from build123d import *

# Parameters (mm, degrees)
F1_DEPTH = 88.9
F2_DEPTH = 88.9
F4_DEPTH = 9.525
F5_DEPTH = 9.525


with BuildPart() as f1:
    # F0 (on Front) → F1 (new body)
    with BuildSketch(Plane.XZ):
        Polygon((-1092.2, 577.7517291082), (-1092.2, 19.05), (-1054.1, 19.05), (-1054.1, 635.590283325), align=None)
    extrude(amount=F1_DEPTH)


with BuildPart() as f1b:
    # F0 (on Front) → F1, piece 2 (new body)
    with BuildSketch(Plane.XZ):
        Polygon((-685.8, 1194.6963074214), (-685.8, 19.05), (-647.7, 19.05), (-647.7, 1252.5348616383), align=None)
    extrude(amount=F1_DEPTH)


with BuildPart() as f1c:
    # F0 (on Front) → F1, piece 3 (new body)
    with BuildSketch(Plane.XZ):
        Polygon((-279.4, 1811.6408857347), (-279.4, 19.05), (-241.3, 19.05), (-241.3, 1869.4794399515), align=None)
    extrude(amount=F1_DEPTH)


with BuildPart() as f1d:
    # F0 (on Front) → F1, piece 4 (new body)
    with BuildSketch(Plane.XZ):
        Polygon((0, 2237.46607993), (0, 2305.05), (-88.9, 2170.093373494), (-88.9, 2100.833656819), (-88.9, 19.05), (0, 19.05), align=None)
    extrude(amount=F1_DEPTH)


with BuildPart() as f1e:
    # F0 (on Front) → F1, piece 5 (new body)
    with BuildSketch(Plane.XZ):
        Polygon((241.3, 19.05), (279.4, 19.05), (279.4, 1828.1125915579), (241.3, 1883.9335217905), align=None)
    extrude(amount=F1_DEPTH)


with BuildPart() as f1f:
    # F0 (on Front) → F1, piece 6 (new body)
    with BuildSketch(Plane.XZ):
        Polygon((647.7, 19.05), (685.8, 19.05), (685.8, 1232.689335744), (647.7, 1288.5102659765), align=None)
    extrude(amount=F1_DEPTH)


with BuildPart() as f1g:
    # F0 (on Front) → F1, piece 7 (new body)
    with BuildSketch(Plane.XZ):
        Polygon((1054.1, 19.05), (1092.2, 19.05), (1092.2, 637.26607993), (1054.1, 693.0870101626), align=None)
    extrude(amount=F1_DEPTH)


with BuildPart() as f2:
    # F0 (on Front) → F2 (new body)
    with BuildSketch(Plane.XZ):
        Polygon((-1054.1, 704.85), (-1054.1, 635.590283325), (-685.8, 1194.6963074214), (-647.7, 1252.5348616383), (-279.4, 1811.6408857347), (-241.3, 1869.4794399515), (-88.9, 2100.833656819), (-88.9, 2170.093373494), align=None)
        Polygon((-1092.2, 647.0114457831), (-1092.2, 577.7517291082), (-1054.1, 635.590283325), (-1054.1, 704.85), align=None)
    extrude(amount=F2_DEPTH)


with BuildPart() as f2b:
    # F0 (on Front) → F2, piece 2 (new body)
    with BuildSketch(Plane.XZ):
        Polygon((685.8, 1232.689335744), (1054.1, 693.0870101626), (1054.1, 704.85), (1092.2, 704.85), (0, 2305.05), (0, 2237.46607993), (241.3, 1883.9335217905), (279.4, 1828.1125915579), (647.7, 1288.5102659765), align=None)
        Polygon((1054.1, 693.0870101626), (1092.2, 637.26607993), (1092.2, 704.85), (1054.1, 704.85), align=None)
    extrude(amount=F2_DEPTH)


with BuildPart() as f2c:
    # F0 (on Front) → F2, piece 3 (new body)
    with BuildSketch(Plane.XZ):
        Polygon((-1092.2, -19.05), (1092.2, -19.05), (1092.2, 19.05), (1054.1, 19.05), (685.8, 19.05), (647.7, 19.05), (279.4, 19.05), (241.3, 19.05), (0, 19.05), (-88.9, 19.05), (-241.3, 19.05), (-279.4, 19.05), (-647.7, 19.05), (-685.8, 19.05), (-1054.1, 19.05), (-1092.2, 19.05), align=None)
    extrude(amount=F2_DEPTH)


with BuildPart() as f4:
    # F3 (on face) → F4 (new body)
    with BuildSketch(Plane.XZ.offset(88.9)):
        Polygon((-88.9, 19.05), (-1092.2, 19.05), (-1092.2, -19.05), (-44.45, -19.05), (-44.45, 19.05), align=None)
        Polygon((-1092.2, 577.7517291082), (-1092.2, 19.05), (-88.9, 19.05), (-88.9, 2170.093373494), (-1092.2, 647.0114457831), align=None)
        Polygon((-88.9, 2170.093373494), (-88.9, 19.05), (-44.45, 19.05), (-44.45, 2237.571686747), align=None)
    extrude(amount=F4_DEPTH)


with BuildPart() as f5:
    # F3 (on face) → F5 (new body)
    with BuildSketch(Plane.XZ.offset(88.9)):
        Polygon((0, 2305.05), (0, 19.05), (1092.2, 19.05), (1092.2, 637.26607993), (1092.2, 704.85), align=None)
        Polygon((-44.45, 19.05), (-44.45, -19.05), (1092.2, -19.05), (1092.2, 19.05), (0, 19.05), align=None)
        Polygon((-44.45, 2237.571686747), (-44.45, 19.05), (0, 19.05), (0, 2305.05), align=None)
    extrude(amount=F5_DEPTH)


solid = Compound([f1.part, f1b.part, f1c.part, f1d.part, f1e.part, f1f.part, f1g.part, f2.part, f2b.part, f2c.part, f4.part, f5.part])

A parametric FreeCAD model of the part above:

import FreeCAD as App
import Part
import Sketcher
from FreeCAD import Vector
Q = App.Units.Quantity


def add_polygon(sketch, points):
    """Adds a closed chain of lines whose ends are joined by coincident constraints."""
    first, n = sketch.GeometryCount, len(points)
    for a, b in zip(points, points[1:] + points[:1]):
        sketch.addGeometry(Part.LineSegment(App.Vector(*a, 0), App.Vector(*b, 0)), False)
    for i in range(n):
        sketch.addConstraint(Sketcher.Constraint("Coincident", first + i, 2, first + (i + 1) % n, 1))

doc = App.newDocument("Part")
params = doc.addObject("Spreadsheet::Sheet", "Params")
for row, (alias, value) in enumerate([
    ("sketch1_width", "1.5 in"),
    ("pad1_length", "3.5 in"),
    ("sketch2_width", "1.5 in"),
    ("pad2_length", "3.5 in"),
    ("sketch3_width", "1.5 in"),
    ("pad3_length", "3.5 in"),
    ("sketch4_height", "90 in"),
    ("sketch4_width", "3.5 in"),
    ("pad4_length", "3.5 in"),
    ("sketch5_width", "1.5 in"),
    ("pad5_length", "3.5 in"),
    ("sketch6_width", "1.5 in"),
    ("pad6_length", "3.5 in"),
    ("sketch7_width", "1.5 in"),
    ("pad7_length", "3.5 in"),
    ("pad8_length", "3.5 in"),
    ("pad9_length", "3.5 in"),
    ("sketch10_width", "86 in"),
    ("sketch10_height", "1.5 in"),
    ("pad10_length", "3.5 in"),
    ("sketch11_width", "41.25 in"),
    ("pad11_length", "0.375 in"),
    ("sketch12_height", "28.5 in"),
    ("sketch12_width", "44.75 in"),
    ("pad12_length", "0.375 in"),
], start=1):
    params.set(f"A{row}", alias)
    params.set(f"B{row}", "=" + value)
    params.setAlias(f"B{row}", alias)

body = doc.addObject("PartDesign::Body", "Body")

# Sketch on XZ plane
sketch1 = body.newObject("Sketcher::SketchObject", "Sketch")
sketch1.AttachmentSupport = (doc.getObject("XZ_Plane"), [""])
sketch1.MapMode = "FlatFace"
add_polygon(sketch1, [(-1092, 578), (-1092, 19), (-1054, 19), (-1054, 636)])  # lines 0-3
sketch1.addConstraint([
    Sketcher.Constraint("Vertical", 0),
    Sketcher.Constraint("Horizontal", 1),
    Sketcher.Constraint("Vertical", 2),
    Sketcher.Constraint("DistanceX", 1, 1, 1, 2, Q("1.5 in")),
    Sketcher.Constraint("DistanceX", 0, 2, -1, 1, Q("43 in")),
    Sketcher.Constraint("DistanceY", -1, 1, 0, 2, Q("0.75 in")),
    Sketcher.Constraint("DistanceY", 0, 2, 0, 1, Q("558.701729 mm")),
    Sketcher.Constraint("DistanceY", 2, 1, 2, 2, Q("616.540283 mm")),
])
sketch1.setExpression("Constraints[7]", "Params.sketch1_width")
pad1 = body.newObject("PartDesign::Pad", "Pad")
pad1.Profile = sketch1
pad1.setExpression("Length", "Params.pad1_length")
body2 = doc.addObject("PartDesign::Body", "Body001")

# Sketch on XZ plane
sketch2 = body2.newObject("Sketcher::SketchObject", "Sketch001")
sketch2.AttachmentSupport = (doc.getObject("XZ_Plane001"), [""])
sketch2.MapMode = "FlatFace"
add_polygon(sketch2, [(-686, 1195), (-686, 19), (-648, 19), (-648, 1253)])  # lines 0-3
sketch2.addConstraint([
    Sketcher.Constraint("Vertical", 0),
    Sketcher.Constraint("Horizontal", 1),
    Sketcher.Constraint("Vertical", 2),
    Sketcher.Constraint("DistanceX", 1, 1, 1, 2, Q("1.5 in")),
    Sketcher.Constraint("DistanceX", 0, 2, -1, 1, Q("27 in")),
    Sketcher.Constraint("DistanceY", -1, 1, 0, 2, Q("0.75 in")),
    Sketcher.Constraint("DistanceY", 2, 1, 2, 2, Q("1233.484862 mm")),
    Sketcher.Constraint("DistanceY", 0, 2, 0, 1, Q("1175.646307 mm")),
])
sketch2.setExpression("Constraints[7]", "Params.sketch2_width")
pad2 = body2.newObject("PartDesign::Pad", "Pad001")
pad2.Profile = sketch2
pad2.setExpression("Length", "Params.pad2_length")
body3 = doc.addObject("PartDesign::Body", "Body002")

# Sketch on XZ plane
sketch3 = body3.newObject("Sketcher::SketchObject", "Sketch002")
sketch3.AttachmentSupport = (doc.getObject("XZ_Plane002"), [""])
sketch3.MapMode = "FlatFace"
add_polygon(sketch3, [(-279, 1812), (-279, 19), (-241, 19), (-241, 1869)])  # lines 0-3
sketch3.addConstraint([
    Sketcher.Constraint("Vertical", 0),
    Sketcher.Constraint("Horizontal", 1),
    Sketcher.Constraint("Vertical", 2),
    Sketcher.Constraint("DistanceX", 1, 1, 1, 2, Q("1.5 in")),
    Sketcher.Constraint("DistanceX", 0, 2, -1, 1, Q("11 in")),
    Sketcher.Constraint("DistanceY", -1, 1, 0, 2, Q("0.75 in")),
    Sketcher.Constraint("DistanceY", 2, 1, 2, 2, Q("1850.42944 mm")),
    Sketcher.Constraint("DistanceY", 0, 2, 0, 1, Q("1792.590886 mm")),
])
sketch3.setExpression("Constraints[7]", "Params.sketch3_width")
pad3 = body3.newObject("PartDesign::Pad", "Pad002")
pad3.Profile = sketch3
pad3.setExpression("Length", "Params.pad3_length")
body4 = doc.addObject("PartDesign::Body", "Body003")

# Sketch on XZ plane
sketch4 = body4.newObject("Sketcher::SketchObject", "Sketch003")
sketch4.AttachmentSupport = (doc.getObject("XZ_Plane003"), [""])
sketch4.MapMode = "FlatFace"
add_polygon(sketch4, [(0, 2305), (-89, 2170), (-89, 19), (0, 19)])  # lines 0-3
sketch4.addConstraint([
    Sketcher.Constraint("Vertical", 1),
    Sketcher.Constraint("Horizontal", 2),
    Sketcher.Constraint("Vertical", 3),
    Sketcher.Constraint("PointOnObject", 2, 2, -2),
    Sketcher.Constraint("DistanceY", 3, 1, 3, 2, Q("90 in")),
    Sketcher.Constraint("DistanceX", 2, 1, 2, 2, Q("3.5 in")),
    Sketcher.Constraint("DistanceY", -1, 1, 1, 2, Q("0.75 in")),
    Sketcher.Constraint("DistanceY", 1, 2, 1, 1, Q("2151.043373 mm")),
])
sketch4.setExpression("Constraints[8]", "Params.sketch4_height")
sketch4.setExpression("Constraints[9]", "Params.sketch4_width")
pad4 = body4.newObject("PartDesign::Pad", "Pad003")
pad4.Profile = sketch4
pad4.setExpression("Length", "Params.pad4_length")
body5 = doc.addObject("PartDesign::Body", "Body004")

# Sketch on XZ plane
sketch5 = body5.newObject("Sketcher::SketchObject", "Sketch004")
sketch5.AttachmentSupport = (doc.getObject("XZ_Plane004"), [""])
sketch5.MapMode = "FlatFace"
add_polygon(sketch5, [(241, 19), (279, 19), (279, 1828), (241, 1884)])  # lines 0-3
sketch5.addConstraint([
    Sketcher.Constraint("Horizontal", 0),
    Sketcher.Constraint("Vertical", 1),
    Sketcher.Constraint("Vertical", 3),
    Sketcher.Constraint("DistanceX", 0, 1, 0, 2, Q("1.5 in")),
    Sketcher.Constraint("DistanceX", -1, 1, 0, 2, Q("11 in")),
    Sketcher.Constraint("DistanceY", -1, 1, 0, 2, Q("0.75 in")),
    Sketcher.Constraint("DistanceY", 1, 1, 1, 2, Q("1809.062592 mm")),
    Sketcher.Constraint("DistanceY", 3, 2, 3, 1, Q("1864.883522 mm")),
])
sketch5.setExpression("Constraints[7]", "Params.sketch5_width")
pad5 = body5.newObject("PartDesign::Pad", "Pad004")
pad5.Profile = sketch5
pad5.setExpression("Length", "Params.pad5_length")
body6 = doc.addObject("PartDesign::Body", "Body005")

# Sketch on XZ plane
sketch6 = body6.newObject("Sketcher::SketchObject", "Sketch005")
sketch6.AttachmentSupport = (doc.getObject("XZ_Plane005"), [""])
sketch6.MapMode = "FlatFace"
add_polygon(sketch6, [(648, 19), (686, 19), (686, 1233), (648, 1289)])  # lines 0-3
sketch6.addConstraint([
    Sketcher.Constraint("Horizontal", 0),
    Sketcher.Constraint("Vertical", 1),
    Sketcher.Constraint("Vertical", 3),
    Sketcher.Constraint("DistanceX", 0, 1, 0, 2, Q("1.5 in")),
    Sketcher.Constraint("DistanceX", -1, 1, 0, 2, Q("27 in")),
    Sketcher.Constraint("DistanceY", -1, 1, 0, 2, Q("0.75 in")),
    Sketcher.Constraint("Distance", 2, Q("67.58392 mm")),
    Sketcher.Constraint("DistanceY", 1, 1, 1, 2, Q("1213.639336 mm")),
])
sketch6.setExpression("Constraints[7]", "Params.sketch6_width")
pad6 = body6.newObject("PartDesign::Pad", "Pad005")
pad6.Profile = sketch6
pad6.setExpression("Length", "Params.pad6_length")
body7 = doc.addObject("PartDesign::Body", "Body006")

# Sketch on XZ plane
sketch7 = body7.newObject("Sketcher::SketchObject", "Sketch006")
sketch7.AttachmentSupport = (doc.getObject("XZ_Plane006"), [""])
sketch7.MapMode = "FlatFace"
add_polygon(sketch7, [(1054, 19), (1092, 19), (1092, 637), (1054, 693)])  # lines 0-3
sketch7.addConstraint([
    Sketcher.Constraint("Horizontal", 0),
    Sketcher.Constraint("Vertical", 1),
    Sketcher.Constraint("Vertical", 3),
    Sketcher.Constraint("DistanceX", 0, 1, 0, 2, Q("1.5 in")),
    Sketcher.Constraint("DistanceX", -1, 1, 0, 2, Q("43 in")),
    Sketcher.Constraint("DistanceY", -1, 1, 0, 2, Q("0.75 in")),
    Sketcher.Constraint("DistanceY", 1, 1, 1, 2, Q("618.21608 mm")),
    Sketcher.Constraint("DistanceY", 3, 2, 3, 1, Q("674.03701 mm")),
])
sketch7.setExpression("Constraints[7]", "Params.sketch7_width")
pad7 = body7.newObject("PartDesign::Pad", "Pad006")
pad7.Profile = sketch7
pad7.setExpression("Length", "Params.pad7_length")
body8 = doc.addObject("PartDesign::Body", "Body007")

# Sketch on XZ plane
sketch8 = body8.newObject("Sketcher::SketchObject", "Sketch007")
sketch8.AttachmentSupport = (doc.getObject("XZ_Plane007"), [""])
sketch8.MapMode = "FlatFace"
add_polygon(sketch8, [(-89, 2101), (-89, 2170), (-1092, 647), (-1092, 578)])  # lines 0-3
sketch8.addConstraint([
    Sketcher.Constraint("Vertical", 0),
    Sketcher.Constraint("Vertical", 2),
    Sketcher.Constraint("Parallel", 1, 3),
    Sketcher.Constraint("DistanceX", 1, 2, -1, 1, Q("43 in")),
    Sketcher.Constraint("DistanceX", 0, 2, -1, 1, Q("3.5 in")),
    Sketcher.Constraint("DistanceY", 0, 1, 0, 2, Q("69.259717 mm")),
    Sketcher.Constraint("DistanceY", -1, 1, 2, 2, Q("577.751729 mm")),
    Sketcher.Constraint("DistanceY", 1, 2, 3, 2, Q("1453.822211 mm")),
])
pad8 = body8.newObject("PartDesign::Pad", "Pad007")
pad8.Profile = sketch8
pad8.setExpression("Length", "Params.pad8_length")
body9 = doc.addObject("PartDesign::Body", "Body008")

# Sketch on XZ plane
sketch9 = body9.newObject("Sketcher::SketchObject", "Sketch008")
sketch9.AttachmentSupport = (doc.getObject("XZ_Plane008"), [""])
sketch9.MapMode = "FlatFace"
add_polygon(sketch9, [(1092, 705), (0, 2305), (0, 2237), (1092, 637)])  # lines 0-3
sketch9.addConstraint([
    Sketcher.Constraint("Vertical", 1),
    Sketcher.Constraint("Vertical", 3),
    Sketcher.Constraint("PointOnObject", 0, 2, -2),
    Sketcher.Constraint("Parallel", 0, 2),
    Sketcher.Constraint("DistanceX", -1, 1, 2, 2, Q("43 in")),
    Sketcher.Constraint("DistanceY", 2, 2, 1, 2, Q("63 in")),
    Sketcher.Constraint("DistanceY", -1, 1, 0, 2, Q("90.75 in")),
    Sketcher.Constraint("DistanceY", 1, 2, 1, 1, Q("67.58392 mm")),
])
pad9 = body9.newObject("PartDesign::Pad", "Pad008")
pad9.Profile = sketch9
pad9.setExpression("Length", "Params.pad9_length")
body10 = doc.addObject("PartDesign::Body", "Body009")

# Sketch on XZ plane
sketch10 = body10.newObject("Sketcher::SketchObject", "Sketch009")
sketch10.AttachmentSupport = (doc.getObject("XZ_Plane009"), [""])
sketch10.MapMode = "FlatFace"
add_polygon(sketch10, [(-1092, -19), (1092, -19), (1092, 19), (-1092, 19)])  # lines 0-3
sketch10.addConstraint([
    Sketcher.Constraint("Horizontal", 0),
    Sketcher.Constraint("Vertical", 1),
    Sketcher.Constraint("Horizontal", 2),
    Sketcher.Constraint("Vertical", 3),
    Sketcher.Constraint("Symmetric", 0, 2, 2, 2, -1, 1),
    Sketcher.Constraint("DistanceX", 0, 1, 0, 2, Q("86 in")),
    Sketcher.Constraint("DistanceY", 1, 1, 1, 2, Q("1.5 in")),
])
sketch10.setExpression("Constraints[9]", "Params.sketch10_width")
sketch10.setExpression("Constraints[10]", "Params.sketch10_height")
pad10 = body10.newObject("PartDesign::Pad", "Pad009")
pad10.Profile = sketch10
pad10.setExpression("Length", "Params.pad10_length")
body11 = doc.addObject("PartDesign::Body", "Body010")

# Sketch on XZ plane
sketch11 = body11.newObject("Sketcher::SketchObject", "Sketch010")
sketch11.AttachmentSupport = (doc.getObject("XZ_Plane010"), [""])
sketch11.MapMode = "FlatFace"
sketch11.AttachmentOffset = App.Placement(Vector(0, 0, 3.5 * 25.4), App.Rotation())
add_polygon(sketch11, [(-1092, -19), (-44, -19), (-44, 2238), (-1092, 647)])  # lines 0-3
sketch11.addConstraint([
    Sketcher.Constraint("Horizontal", 0),
    Sketcher.Constraint("Vertical", 1),
    Sketcher.Constraint("Vertical", 3),
    Sketcher.Constraint("DistanceX", 2, 2, -1, 1, Q("43 in")),
    Sketcher.Constraint("DistanceX", 0, 1, 0, 2, Q("41.25 in")),
    Sketcher.Constraint("DistanceY", 0, 2, -1, 1, Q("0.75 in")),
    Sketcher.Constraint("Distance", 2, Q("1904.642209 mm")),
    Sketcher.Constraint("DistanceY", 1, 1, 1, 2, Q("2256.621687 mm")),
])
sketch11.setExpression("Constraints[8]", "Params.sketch11_width")
pad11 = body11.newObject("PartDesign::Pad", "Pad010")
pad11.Profile = sketch11
pad11.setExpression("Length", "Params.pad11_length")
body12 = doc.addObject("PartDesign::Body", "Body011")

# Sketch on XZ plane
sketch12 = body12.newObject("Sketcher::SketchObject", "Sketch011")
sketch12.AttachmentSupport = (doc.getObject("XZ_Plane011"), [""])
sketch12.MapMode = "FlatFace"
sketch12.AttachmentOffset = App.Placement(Vector(0, 0, 3.5 * 25.4), App.Rotation())
add_polygon(sketch12, [(-44, -19), (1092, -19), (1092, 705), (0, 2305), (-44, 2238)])  # lines 0-4
sketch12.addConstraint([
    Sketcher.Constraint("Horizontal", 0),
    Sketcher.Constraint("Vertical", 1),
    Sketcher.Constraint("Vertical", 4),
    Sketcher.Constraint("PointOnObject", 2, 2, -2),
    Sketcher.Constraint("DistanceY", 1, 1, 1, 2, Q("28.5 in")),
    Sketcher.Constraint("DistanceX", -1, 1, 0, 2, Q("43 in")),
    Sketcher.Constraint("DistanceY", 1, 2, 2, 2, Q("63 in")),
    Sketcher.Constraint("DistanceX", 0, 1, 0, 2, Q("44.75 in")),
    Sketcher.Constraint("DistanceY", 0, 2, -1, 1, Q("0.75 in")),
    Sketcher.Constraint("DistanceY", 4, 2, 4, 1, Q("2256.621687 mm")),
])
sketch12.setExpression("Constraints[9]", "Params.sketch12_height")
sketch12.setExpression("Constraints[12]", "Params.sketch12_width")
pad12 = body12.newObject("PartDesign::Pad", "Pad011")
pad12.Profile = sketch12
pad12.setExpression("Length", "Params.pad12_length")

doc.recompute()
